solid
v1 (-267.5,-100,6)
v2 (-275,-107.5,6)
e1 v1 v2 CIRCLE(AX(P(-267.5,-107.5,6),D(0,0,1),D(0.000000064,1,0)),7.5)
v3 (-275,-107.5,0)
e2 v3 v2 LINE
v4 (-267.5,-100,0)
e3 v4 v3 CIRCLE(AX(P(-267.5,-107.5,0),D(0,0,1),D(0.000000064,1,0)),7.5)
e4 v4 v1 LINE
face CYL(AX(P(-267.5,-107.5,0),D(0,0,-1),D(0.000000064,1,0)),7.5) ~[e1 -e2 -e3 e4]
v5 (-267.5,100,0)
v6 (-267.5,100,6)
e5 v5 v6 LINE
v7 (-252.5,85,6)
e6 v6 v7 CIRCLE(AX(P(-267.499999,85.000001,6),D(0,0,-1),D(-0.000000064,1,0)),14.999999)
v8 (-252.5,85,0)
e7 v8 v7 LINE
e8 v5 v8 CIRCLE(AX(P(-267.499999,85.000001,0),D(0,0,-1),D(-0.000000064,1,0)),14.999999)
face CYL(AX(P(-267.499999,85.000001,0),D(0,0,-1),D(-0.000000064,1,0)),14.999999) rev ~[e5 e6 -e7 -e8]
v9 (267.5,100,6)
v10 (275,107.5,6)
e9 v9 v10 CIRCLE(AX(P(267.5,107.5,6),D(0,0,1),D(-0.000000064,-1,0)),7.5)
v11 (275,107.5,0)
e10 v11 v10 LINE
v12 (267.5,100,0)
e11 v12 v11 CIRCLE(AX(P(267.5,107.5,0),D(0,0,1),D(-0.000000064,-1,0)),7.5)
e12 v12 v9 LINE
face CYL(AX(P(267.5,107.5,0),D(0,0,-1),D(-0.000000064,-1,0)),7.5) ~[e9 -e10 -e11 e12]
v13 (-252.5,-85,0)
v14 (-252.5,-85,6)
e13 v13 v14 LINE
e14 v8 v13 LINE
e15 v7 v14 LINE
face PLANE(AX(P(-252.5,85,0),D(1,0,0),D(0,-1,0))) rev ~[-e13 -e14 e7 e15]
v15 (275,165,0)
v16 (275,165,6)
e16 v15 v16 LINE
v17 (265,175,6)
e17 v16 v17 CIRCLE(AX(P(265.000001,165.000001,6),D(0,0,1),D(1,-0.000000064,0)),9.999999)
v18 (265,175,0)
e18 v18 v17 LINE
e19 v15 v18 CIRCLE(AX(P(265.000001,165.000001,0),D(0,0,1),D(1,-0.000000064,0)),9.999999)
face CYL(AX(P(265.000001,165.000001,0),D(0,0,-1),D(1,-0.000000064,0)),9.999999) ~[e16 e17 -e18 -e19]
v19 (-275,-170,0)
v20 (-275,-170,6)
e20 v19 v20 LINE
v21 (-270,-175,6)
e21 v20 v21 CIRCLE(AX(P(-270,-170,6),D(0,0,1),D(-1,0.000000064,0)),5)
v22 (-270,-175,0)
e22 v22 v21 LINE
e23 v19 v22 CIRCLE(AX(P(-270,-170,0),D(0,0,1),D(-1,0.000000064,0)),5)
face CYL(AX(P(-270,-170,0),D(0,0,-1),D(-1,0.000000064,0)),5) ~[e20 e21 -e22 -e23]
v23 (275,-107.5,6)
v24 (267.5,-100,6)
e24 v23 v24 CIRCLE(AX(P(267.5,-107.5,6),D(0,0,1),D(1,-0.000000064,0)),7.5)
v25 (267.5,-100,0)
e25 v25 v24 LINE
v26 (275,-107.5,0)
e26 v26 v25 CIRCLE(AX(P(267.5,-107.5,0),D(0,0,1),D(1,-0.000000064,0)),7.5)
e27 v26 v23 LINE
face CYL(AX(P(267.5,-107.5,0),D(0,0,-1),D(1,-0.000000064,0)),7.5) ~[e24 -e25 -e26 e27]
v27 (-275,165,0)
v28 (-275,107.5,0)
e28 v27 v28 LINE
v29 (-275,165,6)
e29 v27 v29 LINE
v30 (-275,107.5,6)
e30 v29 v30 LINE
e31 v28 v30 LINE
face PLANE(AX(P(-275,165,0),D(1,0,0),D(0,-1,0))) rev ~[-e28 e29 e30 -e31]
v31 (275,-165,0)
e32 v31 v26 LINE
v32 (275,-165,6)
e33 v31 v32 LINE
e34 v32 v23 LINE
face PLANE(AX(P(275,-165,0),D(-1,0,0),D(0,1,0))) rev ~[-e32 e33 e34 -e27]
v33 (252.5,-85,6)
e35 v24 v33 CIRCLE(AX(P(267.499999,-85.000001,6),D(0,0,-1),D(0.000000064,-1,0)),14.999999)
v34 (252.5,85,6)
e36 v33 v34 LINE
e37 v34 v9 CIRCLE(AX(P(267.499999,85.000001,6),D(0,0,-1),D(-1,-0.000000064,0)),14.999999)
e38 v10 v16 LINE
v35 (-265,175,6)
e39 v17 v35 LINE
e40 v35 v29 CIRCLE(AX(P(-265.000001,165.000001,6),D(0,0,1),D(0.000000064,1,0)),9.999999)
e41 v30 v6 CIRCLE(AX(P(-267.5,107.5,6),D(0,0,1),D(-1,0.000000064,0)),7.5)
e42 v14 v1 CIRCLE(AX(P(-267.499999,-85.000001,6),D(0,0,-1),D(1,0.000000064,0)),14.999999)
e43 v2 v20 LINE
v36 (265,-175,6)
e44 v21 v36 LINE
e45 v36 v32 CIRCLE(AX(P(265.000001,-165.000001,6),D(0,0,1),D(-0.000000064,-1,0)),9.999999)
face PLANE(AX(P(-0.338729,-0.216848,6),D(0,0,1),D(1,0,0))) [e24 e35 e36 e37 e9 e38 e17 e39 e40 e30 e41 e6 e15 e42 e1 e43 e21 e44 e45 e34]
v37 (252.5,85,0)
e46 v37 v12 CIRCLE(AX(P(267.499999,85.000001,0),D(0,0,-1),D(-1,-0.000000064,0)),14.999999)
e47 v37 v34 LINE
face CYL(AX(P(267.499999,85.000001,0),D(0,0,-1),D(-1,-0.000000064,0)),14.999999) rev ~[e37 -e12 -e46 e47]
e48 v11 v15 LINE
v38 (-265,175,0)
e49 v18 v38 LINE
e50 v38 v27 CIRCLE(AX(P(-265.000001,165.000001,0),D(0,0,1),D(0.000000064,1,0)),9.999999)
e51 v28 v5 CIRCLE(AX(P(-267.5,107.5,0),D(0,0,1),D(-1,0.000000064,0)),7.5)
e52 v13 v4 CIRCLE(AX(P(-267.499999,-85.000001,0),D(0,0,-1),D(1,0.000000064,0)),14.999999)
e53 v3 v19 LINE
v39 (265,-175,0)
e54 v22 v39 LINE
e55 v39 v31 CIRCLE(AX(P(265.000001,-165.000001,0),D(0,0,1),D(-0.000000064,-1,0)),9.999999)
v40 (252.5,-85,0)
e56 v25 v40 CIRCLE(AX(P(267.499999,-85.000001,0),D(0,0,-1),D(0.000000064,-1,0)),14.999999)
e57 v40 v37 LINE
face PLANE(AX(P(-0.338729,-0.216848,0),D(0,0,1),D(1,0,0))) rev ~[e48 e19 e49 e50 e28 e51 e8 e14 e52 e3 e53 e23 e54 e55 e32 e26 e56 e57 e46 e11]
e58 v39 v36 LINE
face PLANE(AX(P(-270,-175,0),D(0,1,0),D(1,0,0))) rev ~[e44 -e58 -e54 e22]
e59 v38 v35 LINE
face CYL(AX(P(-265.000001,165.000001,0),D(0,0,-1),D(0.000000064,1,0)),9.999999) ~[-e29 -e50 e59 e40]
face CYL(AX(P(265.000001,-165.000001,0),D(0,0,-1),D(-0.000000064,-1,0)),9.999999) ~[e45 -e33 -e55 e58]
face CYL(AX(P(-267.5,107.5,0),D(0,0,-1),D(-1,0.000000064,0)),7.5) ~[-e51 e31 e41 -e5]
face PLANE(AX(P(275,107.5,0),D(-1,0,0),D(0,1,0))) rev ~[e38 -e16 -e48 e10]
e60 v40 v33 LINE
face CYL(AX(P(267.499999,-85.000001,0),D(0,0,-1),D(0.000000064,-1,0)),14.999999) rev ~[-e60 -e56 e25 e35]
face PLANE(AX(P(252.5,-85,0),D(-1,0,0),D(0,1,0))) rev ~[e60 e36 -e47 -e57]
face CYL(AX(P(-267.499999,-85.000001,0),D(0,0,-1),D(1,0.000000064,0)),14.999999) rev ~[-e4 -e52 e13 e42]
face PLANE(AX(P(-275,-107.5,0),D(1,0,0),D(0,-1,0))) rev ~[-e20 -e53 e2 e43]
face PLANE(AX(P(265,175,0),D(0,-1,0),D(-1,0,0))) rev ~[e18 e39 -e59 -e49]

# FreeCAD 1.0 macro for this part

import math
import FreeCAD as App
import Part
import Sketcher
from FreeCAD import Vector

doc = App.newDocument("Part")
params = doc.addObject("Spreadsheet::Sheet", "Params")
for row, (alias, value) in enumerate([
    ("sketch1_radius", "9.999999 mm"),
    ("sketch1_radius2", "14.999999 mm"),
    ("sketch1_radius3", "5 mm"),
    ("sketch1_radius4", "7.5 mm"),
    ("sketch1_width", "530 mm"),
    ("pad1_length", "6 mm"),
], start=1):
    params.set(f"A{row}", alias)
    params.set(f"B{row}", "=" + value)
    params.setAlias(f"B{row}", alias)

body = doc.addObject("PartDesign::Body", "Body")

sketch1 = doc.addObject("Sketcher::SketchObject", "Sketch")
body.addObject(sketch1)
sketch1.AttachmentSupport = (doc.XY_Plane, [""])
sketch1.MapMode = "FlatFace"
sketch1.addGeometry(Part.ArcOfCircle(Part.Circle(Vector(265, 165, 0), Vector(0, 0, 1), 10), math.radians(0), math.radians(90)), False)
sketch1.addGeometry(Part.LineSegment(Vector(265, 175, 0), Vector(-265, 175, 0)), False)
sketch1.addGeometry(Part.ArcOfCircle(Part.Circle(Vector(-265, 165, 0), Vector(0, 0, 1), 10), math.radians(90), math.radians(180)), False)
sketch1.addGeometry(Part.LineSegment(Vector(-275, 165, 0), Vector(-275, 107.5, 0)), False)
sketch1.addGeometry(Part.ArcOfCircle(Part.Circle(Vector(-267.5, 107.5, 0), Vector(0, 0, 1), 7.5), math.radians(180), math.radians(270)), False)
sketch1.addGeometry(Part.ArcOfCircle(Part.Circle(Vector(-267.5, 85, 0), Vector(0, 0, 1), 15), math.radians(0), math.radians(90)), False)
sketch1.addGeometry(Part.LineSegment(Vector(-252.5, 85, 0), Vector(-252.5, -85, 0)), False)
sketch1.addGeometry(Part.ArcOfCircle(Part.Circle(Vector(-267.5, -85, 0), Vector(0, 0, 1), 15), math.radians(-90), math.radians(0)), False)
sketch1.addGeometry(Part.ArcOfCircle(Part.Circle(Vector(-267.5, -107.5, 0), Vector(0, 0, 1), 7.5), math.radians(90), math.radians(180)), False)
sketch1.addGeometry(Part.LineSegment(Vector(-275, -107.5, 0), Vector(-275, -170, 0)), False)
sketch1.addGeometry(Part.ArcOfCircle(Part.Circle(Vector(-270, -170, 0), Vector(0, 0, 1), 5), math.radians(180), math.radians(270)), False)
sketch1.addGeometry(Part.LineSegment(Vector(-270, -175, 0), Vector(265, -175, 0)), False)
sketch1.addGeometry(Part.ArcOfCircle(Part.Circle(Vector(265, -165, 0), Vector(0, 0, 1), 10), math.radians(-90), math.radians(0)), False)
sketch1.addGeometry(Part.LineSegment(Vector(275, -165, 0), Vector(275, -107.5, 0)), False)
sketch1.addGeometry(Part.ArcOfCircle(Part.Circle(Vector(267.5, -107.5, 0), Vector(0, 0, 1), 7.5), math.radians(0), math.radians(90)), False)
sketch1.addGeometry(Part.ArcOfCircle(Part.Circle(Vector(267.5, -85, 0), Vector(0, 0, 1), 15), math.radians(180), math.radians(270)), False)
sketch1.addGeometry(Part.LineSegment(Vector(252.5, -85, 0), Vector(252.5, 85, 0)), False)
sketch1.addGeometry(Part.ArcOfCircle(Part.Circle(Vector(267.5, 85, 0), Vector(0, 0, 1), 15), math.radians(90), math.radians(180)), False)
sketch1.addGeometry(Part.ArcOfCircle(Part.Circle(Vector(267.5, 107.5, 0), Vector(0, 0, 1), 7.5), math.radians(-90), math.radians(0)), False)
sketch1.addGeometry(Part.LineSegment(Vector(275, 107.5, 0), Vector(275, 165, 0)), False)
sketch1.addConstraint(Sketcher.Constraint("Tangent", 0, 2, 1, 1))
sketch1.addConstraint(Sketcher.Constraint("Tangent", 1, 2, 2, 1))
sketch1.addConstraint(Sketcher.Constraint("Tangent", 2, 2, 3, 1))
sketch1.addConstraint(Sketcher.Constraint("Tangent", 3, 2, 4, 1))
sketch1.addConstraint(Sketcher.Constraint("Tangent", 4, 2, 5, 2))
sketch1.addConstraint(Sketcher.Constraint("Tangent", 5, 1, 6, 1))
sketch1.addConstraint(Sketcher.Constraint("Tangent", 6, 2, 7, 2))
sketch1.addConstraint(Sketcher.Constraint("Tangent", 7, 1, 8, 1))
sketch1.addConstraint(Sketcher.Constraint("Tangent", 8, 2, 9, 1))
sketch1.addConstraint(Sketcher.Constraint("Tangent", 9, 2, 10, 1))
sketch1.addConstraint(Sketcher.Constraint("Tangent", 10, 2, 11, 1))
sketch1.addConstraint(Sketcher.Constraint("Tangent", 11, 2, 12, 1))
sketch1.addConstraint(Sketcher.Constraint("Tangent", 12, 2, 13, 1))
sketch1.addConstraint(Sketcher.Constraint("Tangent", 13, 2, 14, 1))
sketch1.addConstraint(Sketcher.Constraint("Tangent", 14, 2, 15, 2))
sketch1.addConstraint(Sketcher.Constraint("Tangent", 15, 1, 16, 1))
sketch1.addConstraint(Sketcher.Constraint("Tangent", 16, 2, 17, 2))
sketch1.addConstraint(Sketcher.Constraint("Tangent", 17, 1, 18, 1))
sketch1.addConstraint(Sketcher.Constraint("Tangent", 18, 2, 19, 1))
sketch1.addConstraint(Sketcher.Constraint("Tangent", 19, 2, 0, 1))
sketch1.addConstraint(Sketcher.Constraint("Horizontal", 1))
sketch1.addConstraint(Sketcher.Constraint("Vertical", 3))
sketch1.addConstraint(Sketcher.Constraint("Vertical", 6))
sketch1.addConstraint(Sketcher.Constraint("Vertical", 9))
sketch1.addConstraint(Sketcher.Constraint("Horizontal", 11))
sketch1.addConstraint(Sketcher.Constraint("Vertical", 13))
sketch1.addConstraint(Sketcher.Constraint("Vertical", 16))
sketch1.addConstraint(Sketcher.Constraint("Vertical", 19))
sketch1.addConstraint(Sketcher.Constraint("Equal", 0, 2))
sketch1.addConstraint(Sketcher.Constraint("Equal", 5, 7))
sketch1.addConstraint(Sketcher.Constraint("Equal", 4, 8))
sketch1.addConstraint(Sketcher.Constraint("Equal", 2, 12))
sketch1.addConstraint(Sketcher.Constraint("Equal", 8, 14))
sketch1.addConstraint(Sketcher.Constraint("Equal", 7, 15))
sketch1.addConstraint(Sketcher.Constraint("Equal", 15, 17))
sketch1.addConstraint(Sketcher.Constraint("Equal", 14, 18))
sketch1.addConstraint(Sketcher.Constraint("Symmetric", 2, 3, 12, 3, -1, 1))
sketch1.addConstraint(Sketcher.Constraint("Symmetric", 5, 3, 15, 3, -1, 1))
sketch1.addConstraint(Sketcher.Constraint("Symmetric", 8, 3, 18, 3, -1, 1))
sketch1.addConstraint(Sketcher.Constraint("Symmetric", 8, 3, 14, 3, -2))
sketch1.addConstraint(Sketcher.Constraint("Vertical", 4, 3, 5, 3))
sketch1.addConstraint(Sketcher.Constraint("Radius", 0, 9.999999))
sketch1.addConstraint(Sketcher.Constraint("Radius", 5, 14.999999))
sketch1.addConstraint(Sketcher.Constraint("Radius", 10, 5.0))
sketch1.addConstraint(Sketcher.Constraint("Radius", 4, 7.5))
sketch1.addConstraint(Sketcher.Constraint("DistanceX", 1, 2, 1, 1, 530.0))
sketch1.addConstraint(Sketcher.Constraint("DistanceY", 6, 2, 6, 1, 170.0))
sketch1.addConstraint(Sketcher.Constraint("DistanceY", 3, 2, 3, 1, 57.5))
sketch1.setExpression("Constraints[41]", "Params.sketch1_radius")
sketch1.setExpression("Constraints[42]", "Params.sketch1_radius2")
sketch1.setExpression("Constraints[43]", "Params.sketch1_radius3")
sketch1.setExpression("Constraints[44]", "Params.sketch1_radius4")
sketch1.setExpression("Constraints[45]", "Params.sketch1_width")
pad1 = doc.addObject("PartDesign::Pad", "Pad")
body.addObject(pad1)
pad1.Profile = sketch1
pad1.setExpression("Length", "Params.pad1_length")

doc.recompute()
